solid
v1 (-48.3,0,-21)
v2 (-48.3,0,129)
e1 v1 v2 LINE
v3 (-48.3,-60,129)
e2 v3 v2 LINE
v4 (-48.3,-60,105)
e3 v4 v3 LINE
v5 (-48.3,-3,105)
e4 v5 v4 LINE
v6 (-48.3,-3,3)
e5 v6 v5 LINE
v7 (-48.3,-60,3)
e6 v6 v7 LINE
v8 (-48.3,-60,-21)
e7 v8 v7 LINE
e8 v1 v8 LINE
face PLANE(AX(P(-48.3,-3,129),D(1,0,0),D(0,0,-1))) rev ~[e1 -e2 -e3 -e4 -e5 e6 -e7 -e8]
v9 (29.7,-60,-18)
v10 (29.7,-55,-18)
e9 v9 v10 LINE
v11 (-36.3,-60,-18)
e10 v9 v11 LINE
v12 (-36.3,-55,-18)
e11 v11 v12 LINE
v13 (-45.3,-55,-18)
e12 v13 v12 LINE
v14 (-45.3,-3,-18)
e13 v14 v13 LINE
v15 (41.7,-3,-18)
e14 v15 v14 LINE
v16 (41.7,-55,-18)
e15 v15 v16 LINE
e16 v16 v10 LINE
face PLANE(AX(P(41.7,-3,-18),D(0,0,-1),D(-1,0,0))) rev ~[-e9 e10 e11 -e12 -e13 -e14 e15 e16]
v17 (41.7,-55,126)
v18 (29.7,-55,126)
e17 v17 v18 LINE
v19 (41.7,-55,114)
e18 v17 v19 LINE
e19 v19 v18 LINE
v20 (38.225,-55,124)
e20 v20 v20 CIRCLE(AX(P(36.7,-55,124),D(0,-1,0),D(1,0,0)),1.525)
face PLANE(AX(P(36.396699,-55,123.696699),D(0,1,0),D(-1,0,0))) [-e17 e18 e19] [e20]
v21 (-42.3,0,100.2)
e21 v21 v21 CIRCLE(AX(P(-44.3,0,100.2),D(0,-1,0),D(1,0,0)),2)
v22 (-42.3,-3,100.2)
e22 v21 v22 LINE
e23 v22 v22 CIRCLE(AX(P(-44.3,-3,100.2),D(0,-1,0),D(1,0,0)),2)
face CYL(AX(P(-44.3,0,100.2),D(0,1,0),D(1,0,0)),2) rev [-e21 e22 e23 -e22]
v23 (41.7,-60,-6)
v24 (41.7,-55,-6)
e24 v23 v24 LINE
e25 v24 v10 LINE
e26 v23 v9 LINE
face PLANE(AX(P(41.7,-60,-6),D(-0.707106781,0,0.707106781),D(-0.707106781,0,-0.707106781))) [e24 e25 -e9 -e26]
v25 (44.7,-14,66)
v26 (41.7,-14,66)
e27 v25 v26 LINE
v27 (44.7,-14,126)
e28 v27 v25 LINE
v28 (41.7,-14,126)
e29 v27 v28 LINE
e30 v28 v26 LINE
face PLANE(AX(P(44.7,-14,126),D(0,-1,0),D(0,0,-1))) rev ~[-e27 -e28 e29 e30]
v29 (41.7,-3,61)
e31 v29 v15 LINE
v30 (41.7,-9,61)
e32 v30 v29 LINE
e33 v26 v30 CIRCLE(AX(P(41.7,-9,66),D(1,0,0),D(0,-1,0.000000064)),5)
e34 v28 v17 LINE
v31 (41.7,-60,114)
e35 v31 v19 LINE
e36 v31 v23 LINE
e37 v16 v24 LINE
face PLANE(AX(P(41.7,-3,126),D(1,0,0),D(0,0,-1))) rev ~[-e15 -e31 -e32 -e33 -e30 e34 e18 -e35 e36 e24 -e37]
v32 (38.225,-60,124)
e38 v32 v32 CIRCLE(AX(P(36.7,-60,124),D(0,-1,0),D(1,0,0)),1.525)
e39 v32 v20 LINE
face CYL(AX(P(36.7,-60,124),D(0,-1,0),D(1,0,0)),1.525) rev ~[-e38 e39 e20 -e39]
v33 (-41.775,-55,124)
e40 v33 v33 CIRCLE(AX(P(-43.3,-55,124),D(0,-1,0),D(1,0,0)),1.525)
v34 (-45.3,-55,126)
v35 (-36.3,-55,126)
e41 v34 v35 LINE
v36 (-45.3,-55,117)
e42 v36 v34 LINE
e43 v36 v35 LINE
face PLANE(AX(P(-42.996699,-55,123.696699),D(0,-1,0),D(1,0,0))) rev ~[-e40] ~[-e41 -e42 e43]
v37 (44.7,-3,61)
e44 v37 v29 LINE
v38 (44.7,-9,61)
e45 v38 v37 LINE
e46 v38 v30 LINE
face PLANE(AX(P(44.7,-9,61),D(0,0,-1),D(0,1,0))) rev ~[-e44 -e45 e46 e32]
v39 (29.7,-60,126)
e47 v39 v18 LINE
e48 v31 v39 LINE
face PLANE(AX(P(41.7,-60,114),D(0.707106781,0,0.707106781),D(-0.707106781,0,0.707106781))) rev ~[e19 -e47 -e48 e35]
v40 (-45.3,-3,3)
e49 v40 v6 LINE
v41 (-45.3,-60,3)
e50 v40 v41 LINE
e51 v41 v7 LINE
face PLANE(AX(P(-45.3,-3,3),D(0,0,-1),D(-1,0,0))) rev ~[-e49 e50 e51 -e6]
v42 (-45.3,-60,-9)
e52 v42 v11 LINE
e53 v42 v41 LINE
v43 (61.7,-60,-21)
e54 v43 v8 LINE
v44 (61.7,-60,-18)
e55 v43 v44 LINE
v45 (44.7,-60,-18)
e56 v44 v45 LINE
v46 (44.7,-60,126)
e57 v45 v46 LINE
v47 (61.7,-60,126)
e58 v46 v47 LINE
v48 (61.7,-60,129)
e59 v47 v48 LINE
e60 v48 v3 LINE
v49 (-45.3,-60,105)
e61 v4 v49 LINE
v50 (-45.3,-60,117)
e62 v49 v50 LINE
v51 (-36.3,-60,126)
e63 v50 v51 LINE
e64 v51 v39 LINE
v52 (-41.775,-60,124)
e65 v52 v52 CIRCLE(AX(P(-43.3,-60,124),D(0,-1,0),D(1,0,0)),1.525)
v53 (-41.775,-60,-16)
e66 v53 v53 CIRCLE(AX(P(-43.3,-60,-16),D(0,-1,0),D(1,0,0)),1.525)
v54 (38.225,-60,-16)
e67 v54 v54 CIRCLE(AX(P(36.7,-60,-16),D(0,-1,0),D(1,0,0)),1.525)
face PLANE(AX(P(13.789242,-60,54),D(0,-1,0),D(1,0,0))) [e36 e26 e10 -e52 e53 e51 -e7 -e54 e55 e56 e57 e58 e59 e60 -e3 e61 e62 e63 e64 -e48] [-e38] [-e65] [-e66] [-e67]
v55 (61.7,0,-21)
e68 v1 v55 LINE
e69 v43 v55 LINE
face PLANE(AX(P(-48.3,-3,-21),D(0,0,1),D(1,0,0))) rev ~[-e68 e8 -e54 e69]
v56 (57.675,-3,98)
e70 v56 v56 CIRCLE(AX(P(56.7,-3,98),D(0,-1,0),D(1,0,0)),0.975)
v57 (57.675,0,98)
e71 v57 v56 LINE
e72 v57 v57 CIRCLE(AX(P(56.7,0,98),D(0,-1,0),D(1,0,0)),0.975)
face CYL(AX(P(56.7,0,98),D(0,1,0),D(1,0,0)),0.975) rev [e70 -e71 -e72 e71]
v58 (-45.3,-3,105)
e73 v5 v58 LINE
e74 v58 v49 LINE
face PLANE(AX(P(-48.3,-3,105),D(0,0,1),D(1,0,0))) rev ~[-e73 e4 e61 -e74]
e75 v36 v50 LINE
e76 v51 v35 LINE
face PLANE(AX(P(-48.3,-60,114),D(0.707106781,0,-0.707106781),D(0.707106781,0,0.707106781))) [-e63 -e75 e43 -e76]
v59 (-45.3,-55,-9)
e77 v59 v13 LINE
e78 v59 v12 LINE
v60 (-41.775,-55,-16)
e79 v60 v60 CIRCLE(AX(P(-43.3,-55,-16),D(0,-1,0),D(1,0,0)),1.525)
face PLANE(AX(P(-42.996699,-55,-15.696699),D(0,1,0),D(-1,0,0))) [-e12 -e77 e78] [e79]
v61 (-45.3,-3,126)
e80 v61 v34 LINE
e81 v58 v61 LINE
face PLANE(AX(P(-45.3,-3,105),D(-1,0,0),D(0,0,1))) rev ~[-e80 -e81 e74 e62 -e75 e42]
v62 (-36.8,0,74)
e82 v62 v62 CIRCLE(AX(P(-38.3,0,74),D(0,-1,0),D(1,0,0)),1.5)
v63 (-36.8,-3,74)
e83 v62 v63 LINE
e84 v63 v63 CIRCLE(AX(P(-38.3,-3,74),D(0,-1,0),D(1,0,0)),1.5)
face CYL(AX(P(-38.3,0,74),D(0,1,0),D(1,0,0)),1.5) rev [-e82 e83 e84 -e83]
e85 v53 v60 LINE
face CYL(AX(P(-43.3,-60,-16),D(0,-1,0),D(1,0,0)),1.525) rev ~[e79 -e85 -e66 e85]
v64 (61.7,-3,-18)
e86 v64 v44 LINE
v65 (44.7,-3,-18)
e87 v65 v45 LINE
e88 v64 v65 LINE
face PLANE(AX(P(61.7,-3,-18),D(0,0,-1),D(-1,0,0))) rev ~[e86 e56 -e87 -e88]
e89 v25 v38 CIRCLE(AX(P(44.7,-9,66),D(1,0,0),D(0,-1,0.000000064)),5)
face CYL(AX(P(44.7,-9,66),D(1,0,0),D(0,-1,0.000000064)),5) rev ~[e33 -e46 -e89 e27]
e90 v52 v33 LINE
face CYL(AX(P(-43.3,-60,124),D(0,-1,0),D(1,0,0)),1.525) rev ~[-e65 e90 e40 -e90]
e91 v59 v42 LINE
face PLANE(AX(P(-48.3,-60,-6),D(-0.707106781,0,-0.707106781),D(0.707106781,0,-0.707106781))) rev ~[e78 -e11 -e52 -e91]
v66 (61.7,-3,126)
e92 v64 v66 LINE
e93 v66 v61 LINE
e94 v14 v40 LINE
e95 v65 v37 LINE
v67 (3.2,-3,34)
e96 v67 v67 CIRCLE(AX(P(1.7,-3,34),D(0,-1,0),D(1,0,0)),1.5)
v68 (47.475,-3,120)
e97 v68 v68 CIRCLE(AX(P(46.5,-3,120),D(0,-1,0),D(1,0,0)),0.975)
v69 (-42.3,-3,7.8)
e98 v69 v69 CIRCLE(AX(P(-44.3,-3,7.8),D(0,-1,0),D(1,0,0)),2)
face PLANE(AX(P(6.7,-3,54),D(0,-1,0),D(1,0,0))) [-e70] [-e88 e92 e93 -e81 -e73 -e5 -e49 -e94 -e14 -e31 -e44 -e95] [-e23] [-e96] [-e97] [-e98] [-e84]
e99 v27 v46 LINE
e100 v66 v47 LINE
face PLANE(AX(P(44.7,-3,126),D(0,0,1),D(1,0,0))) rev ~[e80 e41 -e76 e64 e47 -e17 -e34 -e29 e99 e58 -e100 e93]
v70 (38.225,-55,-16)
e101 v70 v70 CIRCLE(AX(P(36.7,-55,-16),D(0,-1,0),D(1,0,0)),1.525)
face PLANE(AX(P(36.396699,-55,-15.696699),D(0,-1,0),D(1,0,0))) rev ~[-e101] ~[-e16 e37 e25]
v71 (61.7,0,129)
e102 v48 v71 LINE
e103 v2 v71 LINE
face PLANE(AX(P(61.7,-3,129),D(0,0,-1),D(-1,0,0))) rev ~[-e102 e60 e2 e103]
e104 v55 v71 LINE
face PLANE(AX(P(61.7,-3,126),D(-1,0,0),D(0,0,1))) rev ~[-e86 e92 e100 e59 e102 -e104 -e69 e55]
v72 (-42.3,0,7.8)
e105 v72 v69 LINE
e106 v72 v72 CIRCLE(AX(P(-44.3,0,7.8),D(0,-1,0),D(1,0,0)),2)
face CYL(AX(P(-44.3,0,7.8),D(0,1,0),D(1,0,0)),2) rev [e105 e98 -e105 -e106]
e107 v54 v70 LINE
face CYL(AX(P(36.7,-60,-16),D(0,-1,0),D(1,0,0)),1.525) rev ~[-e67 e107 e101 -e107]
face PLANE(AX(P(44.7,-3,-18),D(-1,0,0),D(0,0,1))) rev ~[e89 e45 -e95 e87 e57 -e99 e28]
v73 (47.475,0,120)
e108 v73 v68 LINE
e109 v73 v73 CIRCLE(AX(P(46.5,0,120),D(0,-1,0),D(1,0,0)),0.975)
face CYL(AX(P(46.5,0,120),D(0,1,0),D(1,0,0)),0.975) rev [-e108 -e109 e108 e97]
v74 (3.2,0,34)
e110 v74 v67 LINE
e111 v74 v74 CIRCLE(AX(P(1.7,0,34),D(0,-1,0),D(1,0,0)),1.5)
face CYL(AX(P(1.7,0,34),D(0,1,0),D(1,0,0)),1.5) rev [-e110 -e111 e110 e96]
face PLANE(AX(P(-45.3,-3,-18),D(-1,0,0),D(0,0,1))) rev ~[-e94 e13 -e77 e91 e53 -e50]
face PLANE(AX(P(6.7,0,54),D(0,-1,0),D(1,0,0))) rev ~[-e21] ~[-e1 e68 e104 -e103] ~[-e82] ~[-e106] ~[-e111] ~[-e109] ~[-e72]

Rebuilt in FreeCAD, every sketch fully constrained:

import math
import FreeCAD as App
import Part
import Sketcher

V = App.Vector


def add_polygon(sketch, points):
    """Adds a closed chain of lines whose ends are joined by coincident constraints."""
    first, n = sketch.GeometryCount, len(points)
    for a, b in zip(points, points[1:] + points[:1]):
        sketch.addGeometry(Part.LineSegment(App.Vector(*a, 0), App.Vector(*b, 0)), False)
    for i in range(n):
        sketch.addConstraint(Sketcher.Constraint("Coincident", first + i, 2, first + (i + 1) % n, 1))

doc = App.newDocument("Part")
body = doc.addObject("PartDesign::Body", "Body")

# Sketch on XZ plane
sketch1 = body.newObject("Sketcher::SketchObject", "Sketch")
sketch1.AttachmentSupport = (doc.getObject("XZ_Plane"), [""])
sketch1.MapMode = "FlatFace"
add_polygon(sketch1, [(-48.3, 129), (-48.3, -21), (61.7, -21), (61.7, 129)])  # lines 0-3
sketch1.addGeometry(Part.Circle(V(-44.3, 7.8, 0), V(0, 0, 1), 2), False)  # 4
sketch1.addGeometry(Part.Circle(V(1.7, 34, 0), V(0, 0, 1), 1.5), False)  # 5
sketch1.addGeometry(Part.Circle(V(-38.3, 74, 0), V(0, 0, 1), 1.5), False)  # 6
sketch1.addGeometry(Part.Circle(V(-44.3, 100.2, 0), V(0, 0, 1), 2), False)  # 7
sketch1.addGeometry(Part.Circle(V(56.7, 98, 0), V(0, 0, 1), 0.975), False)  # 8
sketch1.addGeometry(Part.Circle(V(46.5, 120, 0), V(0, 0, 1), 0.975), False)  # 9
sketch1.addConstraint([
    Sketcher.Constraint("Vertical", 0),
    Sketcher.Constraint("Horizontal", 1),
    Sketcher.Constraint("Vertical", 2),
    Sketcher.Constraint("Horizontal", 3),
    Sketcher.Constraint("Equal", 5, 6),
    Sketcher.Constraint("Equal", 4, 7),
    Sketcher.Constraint("Equal", 8, 9),
    Sketcher.Constraint("Vertical", 4, 3, 7, 3),
    Sketcher.Constraint("Diameter", 4, 4.0),
    Sketcher.Constraint("Diameter", 5, 3.0),
    Sketcher.Constraint("Diameter", 8, 1.95),
    Sketcher.Constraint("DistanceX", 1, 1, 1, 2, 110.0),
    Sketcher.Constraint("DistanceY", 0, 2, 0, 1, 150.0),
    Sketcher.Constraint("DistanceY", -1, 1, 5, 3, 34.0),
    Sketcher.Constraint("DistanceY", -1, 1, 6, 3, 74.0),
    Sketcher.Constraint("DistanceY", -1, 1, 8, 3, 98.0),
    Sketcher.Constraint("DistanceY", -1, 1, 9, 3, 120.0),
    Sketcher.Constraint("DistanceY", 0, 2, -1, 1, 21.0),
    Sketcher.Constraint("DistanceX", 4, 3, 5, 3, 46.0),
    Sketcher.Constraint("DistanceX", 6, 3, 5, 3, 40.0),
    Sketcher.Constraint("DistanceX", 5, 3, 8, 3, 55.0),
    Sketcher.Constraint("DistanceX", 0, 2, 4, 3, 4.0),
    Sketcher.Constraint("DistanceX", 4, 3, -1, 1, 44.3),
    Sketcher.Constraint("DistanceY", -1, 1, 4, 3, 7.8),
    Sketcher.Constraint("DistanceY", -1, 1, 7, 3, 100.2),
    Sketcher.Constraint("DistanceX", -1, 1, 9, 3, 46.5),
])
pad1 = body.newObject("PartDesign::Pad", "Pad")
pad1.Profile = sketch1
pad1.Length = 3

# Sketch on XZ plane
sketch2 = body.newObject("Sketcher::SketchObject", "Sketch001")
sketch2.AttachmentSupport = (doc.getObject("XZ_Plane"), [""])
sketch2.MapMode = "FlatFace"
sketch2.AttachmentOffset = App.Placement(V(0, 0, 3), App.Rotation())
add_polygon(sketch2, [(61.7, 129), (-48.3, 129), (-48.3, 105), (-45.3, 105), (-45.3, 126), (41.7, 126), (41.7, -18), (-45.3, -18), (-45.3, 3), (-48.3, 3), (-48.3, -21), (61.7, -21), (61.7, -18), (44.7, -18), (44.7, 126), (61.7, 126)])  # lines 0-15
sketch2.addConstraint([
    Sketcher.Constraint("Horizontal", 0),
    Sketcher.Constraint("Vertical", 1),
    Sketcher.Constraint("Horizontal", 2),
    Sketcher.Constraint("Vertical", 3),
    Sketcher.Constraint("Horizontal", 4),
    Sketcher.Constraint("Vertical", 5),
    Sketcher.Constraint("Horizontal", 6),
    Sketcher.Constraint("Vertical", 7),
    Sketcher.Constraint("Horizontal", 8),
    Sketcher.Constraint("Vertical", 9),
    Sketcher.Constraint("Horizontal", 10),
    Sketcher.Constraint("Vertical", 11),
    Sketcher.Constraint("Horizontal", 12),
    Sketcher.Constraint("Vertical", 13),
    Sketcher.Constraint("Horizontal", 14),
    Sketcher.Constraint("Vertical", 15),
    Sketcher.Constraint("Horizontal", 6, 2, 11, 2),
    Sketcher.Constraint("Horizontal", 4, 2, 13, 2),
    Sketcher.Constraint("Vertical", 3, 2, 6, 2),
    Sketcher.Constraint("Vertical", 1, 2, 8, 2),
    Sketcher.Constraint("Vertical", 11, 2, 14, 2),
    Sketcher.Constraint("Equal", 3, 7),
    Sketcher.Constraint("Equal", 1, 9),
    Sketcher.Constraint("Equal", 8, 11),
    Sketcher.Constraint("DistanceX", 0, 2, 0, 1, 110.0),
    Sketcher.Constraint("DistanceX", 2, 1, 2, 2, 3.0),
    Sketcher.Constraint("DistanceX", 4, 1, 4, 2, 87.0),
    Sketcher.Constraint("DistanceX", 12, 2, 12, 1, 17.0),
    Sketcher.Constraint("DistanceY", 1, 2, 1, 1, 24.0),
    Sketcher.Constraint("DistanceY", 5, 2, 5, 1, 144.0),
    Sketcher.Constraint("DistanceY", -1, 1, 0, 2, 129.0),
    Sketcher.Constraint("DistanceX", 0, 2, -1, 1, 48.3),
])
pad2 = body.newObject("PartDesign::Pad", "Pad001")
pad2.Profile = sketch2
pad2.Length = 57

# Sketch on XZ plane
sketch3 = body.newObject("Sketcher::SketchObject", "Sketch002")
sketch3.AttachmentSupport = (doc.getObject("XZ_Plane"), [""])
sketch3.MapMode = "FlatFace"
sketch3.AttachmentOffset = App.Placement(V(0, 0, 60), App.Rotation())
add_polygon(sketch3, [(-48.3, -6), (-48.3, -21), (-33.3, -21)])  # lines 0-2
sketch3.addGeometry(Part.Circle(V(-43.3, -16, 0), V(0, 0, 1), 1.525), False)  # 3
add_polygon(sketch3, [(-48.3, 129), (-48.3, 114), (-33.3, 129)])  # lines 4-6
sketch3.addGeometry(Part.Circle(V(-43.3, 124, 0), V(0, 0, 1), 1.525), False)  # 7
add_polygon(sketch3, [(41.7, -21), (41.7, -6), (26.7, -21)])  # lines 8-10
sketch3.addGeometry(Part.Circle(V(36.7, -16, 0), V(0, 0, 1), 1.525), False)  # 11
add_polygon(sketch3, [(41.7, 114), (41.7, 129), (26.7, 129)])  # lines 12-14
sketch3.addGeometry(Part.Circle(V(36.7, 124, 0), V(0, 0, 1), 1.525), False)  # 15
sketch3.addConstraint([
    Sketcher.Constraint("Vertical", 0),
    Sketcher.Constraint("Horizontal", 1),
    Sketcher.Constraint("Vertical", 4),
    Sketcher.Constraint("Horizontal", 6),
    Sketcher.Constraint("Vertical", 8),
    Sketcher.Constraint("Horizontal", 10),
    Sketcher.Constraint("Vertical", 12),
    Sketcher.Constraint("Horizontal", 13),
    Sketcher.Constraint("Equal", 3, 7),
    Sketcher.Constraint("Equal", 7, 11),
    Sketcher.Constraint("Equal", 11, 15),
    Sketcher.Constraint("Perpendicular", 2, 5),
    Sketcher.Constraint("Parallel", 5, 9),
    Sketcher.Constraint("Perpendicular", 9, 14),
    Sketcher.Constraint("Horizontal", 3, 3, 11, 3),
    Sketcher.Constraint("Horizontal", 7, 3, 15, 3),
    Sketcher.Constraint("Horizontal", 2, 2, 8, 2),
    Sketcher.Constraint("Horizontal", 1, 2, 9, 2),
    Sketcher.Constraint("Horizontal", 6, 2, 12, 2),
    Sketcher.Constraint("Horizontal", 4, 2, 14, 2),
    Sketcher.Constraint("Vertical", 3, 3, 7, 3),
    Sketcher.Constraint("Vertical", 11, 3, 15, 3),
    Sketcher.Constraint("Vertical", 2, 2, 4, 2),
    Sketcher.Constraint("Vertical", 1, 2, 5, 2),
    Sketcher.Constraint("Vertical", 10, 2, 12, 2),
    Sketcher.Constraint("Vertical", 9, 2, 13, 2),
    Sketcher.Constraint("Diameter", 3, 3.05),
    Sketcher.Constraint("DistanceX", 1, 1, 1, 2, 15.0),
    Sketcher.Constraint("DistanceY", 3, 3, -1, 1, 16.0),
    Sketcher.Constraint("DistanceY", -1, 1, 7, 3, 124.0),
    Sketcher.Constraint("DistanceY", 0, 2, -1, 1, 21.0),
    Sketcher.Constraint("DistanceY", -1, 1, 4, 2, 114.0),
    Sketcher.Constraint("DistanceX", 3, 3, 11, 3, 80.0),
    Sketcher.Constraint("DistanceX", 0, 2, 3, 3, 5.0),
    Sketcher.Constraint("DistanceX", 11, 3, 8, 2, 5.0),
    Sketcher.Constraint("DistanceX", 3, 3, -1, 1, 43.3),
])
pad3 = body.newObject("PartDesign::Pad", "Pad002")
pad3.Profile = sketch3
pad3.Length = 5
pad3.Reversed = True

# Sketch on YZ plane
sketch4 = body.newObject("Sketcher::SketchObject", "Sketch003")
sketch4.AttachmentSupport = (doc.getObject("YZ_Plane"), [""])
sketch4.MapMode = "FlatFace"
sketch4.AttachmentOffset = App.Placement(V(0, 0, 44.7), App.Rotation())
sketch4.addGeometry([
    Part.LineSegment(V(-3, 126, 0), V(-14, 126, 0)),  # 0
    Part.LineSegment(V(-14, 126, 0), V(-14, 66, 0)),  # 1
    Part.ArcOfCircle(Part.Circle(V(-9, 66, 0), V(0, 0, 1), 5), math.radians(179.999996), math.radians(270.000004)),  # 2
    Part.LineSegment(V(-9, 61, 0), V(-3, 61, 0)),  # 3
    Part.LineSegment(V(-3, 61, 0), V(-3, 126, 0)),  # 4
], False)
sketch4.addConstraint([
    Sketcher.Constraint("Coincident", 0, 2, 1, 1),
    Sketcher.Constraint("Tangent", 1, 2, 2, 1),
    Sketcher.Constraint("Tangent", 2, 2, 3, 1),
    Sketcher.Constraint("Coincident", 3, 2, 4, 1),
    Sketcher.Constraint("Coincident", 4, 2, 0, 1),
    Sketcher.Constraint("Horizontal", 0),
    Sketcher.Constraint("Vertical", 1),
    Sketcher.Constraint("Horizontal", 3),
    Sketcher.Constraint("Vertical", 4),
    Sketcher.Constraint("Radius", 2, 5.0),
    Sketcher.Constraint("DistanceX", 0, 2, 0, 1, 11.0),
    Sketcher.Constraint("DistanceY", 1, 2, 1, 1, 60.0),
    Sketcher.Constraint("DistanceX", 2, 3, -1, 1, 9.0),
    Sketcher.Constraint("DistanceY", -1, 1, 2, 3, 66.0),
])
pocket1 = body.newObject("PartDesign::Pocket", "Pocket")
pocket1.Profile = sketch4
pocket1.Length = 3

doc.recompute()
